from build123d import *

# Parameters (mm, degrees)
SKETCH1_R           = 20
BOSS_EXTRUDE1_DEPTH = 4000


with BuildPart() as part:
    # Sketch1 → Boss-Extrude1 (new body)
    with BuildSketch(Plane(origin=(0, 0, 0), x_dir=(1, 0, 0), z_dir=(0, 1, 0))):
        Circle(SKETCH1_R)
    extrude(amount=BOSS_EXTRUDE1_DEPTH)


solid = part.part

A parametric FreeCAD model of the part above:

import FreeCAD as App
import Part
import Sketcher

V = App.Vector
Q = App.Units.Quantity

doc = App.newDocument("Part")
body = doc.addObject("PartDesign::Body", "Body")

# Sketch on XZ plane
sketch1 = doc.addObject("Sketcher::SketchObject", "Sketch")
body.addObject(sketch1)
sketch1.AttachmentSupport = (doc.XZ_Plane, [""])
sketch1.MapMode = "FlatFace"
sketch1.addGeometry(Part.Circle(V(0, 0, 0), V(0, 0, 1), 20), False)
sketch1.addConstraint([
    Sketcher.Constraint("Coincident", 0, 3, -1, 1),
    Sketcher.Constraint("Diameter", 0, Q("40 mm")),
])
pad1 = doc.addObject("PartDesign::Pad", "Pad")
body.addObject(pad1)
pad1.Profile = sketch1
pad1.Length = 4000
pad1.Reversed = True

doc.recompute()
